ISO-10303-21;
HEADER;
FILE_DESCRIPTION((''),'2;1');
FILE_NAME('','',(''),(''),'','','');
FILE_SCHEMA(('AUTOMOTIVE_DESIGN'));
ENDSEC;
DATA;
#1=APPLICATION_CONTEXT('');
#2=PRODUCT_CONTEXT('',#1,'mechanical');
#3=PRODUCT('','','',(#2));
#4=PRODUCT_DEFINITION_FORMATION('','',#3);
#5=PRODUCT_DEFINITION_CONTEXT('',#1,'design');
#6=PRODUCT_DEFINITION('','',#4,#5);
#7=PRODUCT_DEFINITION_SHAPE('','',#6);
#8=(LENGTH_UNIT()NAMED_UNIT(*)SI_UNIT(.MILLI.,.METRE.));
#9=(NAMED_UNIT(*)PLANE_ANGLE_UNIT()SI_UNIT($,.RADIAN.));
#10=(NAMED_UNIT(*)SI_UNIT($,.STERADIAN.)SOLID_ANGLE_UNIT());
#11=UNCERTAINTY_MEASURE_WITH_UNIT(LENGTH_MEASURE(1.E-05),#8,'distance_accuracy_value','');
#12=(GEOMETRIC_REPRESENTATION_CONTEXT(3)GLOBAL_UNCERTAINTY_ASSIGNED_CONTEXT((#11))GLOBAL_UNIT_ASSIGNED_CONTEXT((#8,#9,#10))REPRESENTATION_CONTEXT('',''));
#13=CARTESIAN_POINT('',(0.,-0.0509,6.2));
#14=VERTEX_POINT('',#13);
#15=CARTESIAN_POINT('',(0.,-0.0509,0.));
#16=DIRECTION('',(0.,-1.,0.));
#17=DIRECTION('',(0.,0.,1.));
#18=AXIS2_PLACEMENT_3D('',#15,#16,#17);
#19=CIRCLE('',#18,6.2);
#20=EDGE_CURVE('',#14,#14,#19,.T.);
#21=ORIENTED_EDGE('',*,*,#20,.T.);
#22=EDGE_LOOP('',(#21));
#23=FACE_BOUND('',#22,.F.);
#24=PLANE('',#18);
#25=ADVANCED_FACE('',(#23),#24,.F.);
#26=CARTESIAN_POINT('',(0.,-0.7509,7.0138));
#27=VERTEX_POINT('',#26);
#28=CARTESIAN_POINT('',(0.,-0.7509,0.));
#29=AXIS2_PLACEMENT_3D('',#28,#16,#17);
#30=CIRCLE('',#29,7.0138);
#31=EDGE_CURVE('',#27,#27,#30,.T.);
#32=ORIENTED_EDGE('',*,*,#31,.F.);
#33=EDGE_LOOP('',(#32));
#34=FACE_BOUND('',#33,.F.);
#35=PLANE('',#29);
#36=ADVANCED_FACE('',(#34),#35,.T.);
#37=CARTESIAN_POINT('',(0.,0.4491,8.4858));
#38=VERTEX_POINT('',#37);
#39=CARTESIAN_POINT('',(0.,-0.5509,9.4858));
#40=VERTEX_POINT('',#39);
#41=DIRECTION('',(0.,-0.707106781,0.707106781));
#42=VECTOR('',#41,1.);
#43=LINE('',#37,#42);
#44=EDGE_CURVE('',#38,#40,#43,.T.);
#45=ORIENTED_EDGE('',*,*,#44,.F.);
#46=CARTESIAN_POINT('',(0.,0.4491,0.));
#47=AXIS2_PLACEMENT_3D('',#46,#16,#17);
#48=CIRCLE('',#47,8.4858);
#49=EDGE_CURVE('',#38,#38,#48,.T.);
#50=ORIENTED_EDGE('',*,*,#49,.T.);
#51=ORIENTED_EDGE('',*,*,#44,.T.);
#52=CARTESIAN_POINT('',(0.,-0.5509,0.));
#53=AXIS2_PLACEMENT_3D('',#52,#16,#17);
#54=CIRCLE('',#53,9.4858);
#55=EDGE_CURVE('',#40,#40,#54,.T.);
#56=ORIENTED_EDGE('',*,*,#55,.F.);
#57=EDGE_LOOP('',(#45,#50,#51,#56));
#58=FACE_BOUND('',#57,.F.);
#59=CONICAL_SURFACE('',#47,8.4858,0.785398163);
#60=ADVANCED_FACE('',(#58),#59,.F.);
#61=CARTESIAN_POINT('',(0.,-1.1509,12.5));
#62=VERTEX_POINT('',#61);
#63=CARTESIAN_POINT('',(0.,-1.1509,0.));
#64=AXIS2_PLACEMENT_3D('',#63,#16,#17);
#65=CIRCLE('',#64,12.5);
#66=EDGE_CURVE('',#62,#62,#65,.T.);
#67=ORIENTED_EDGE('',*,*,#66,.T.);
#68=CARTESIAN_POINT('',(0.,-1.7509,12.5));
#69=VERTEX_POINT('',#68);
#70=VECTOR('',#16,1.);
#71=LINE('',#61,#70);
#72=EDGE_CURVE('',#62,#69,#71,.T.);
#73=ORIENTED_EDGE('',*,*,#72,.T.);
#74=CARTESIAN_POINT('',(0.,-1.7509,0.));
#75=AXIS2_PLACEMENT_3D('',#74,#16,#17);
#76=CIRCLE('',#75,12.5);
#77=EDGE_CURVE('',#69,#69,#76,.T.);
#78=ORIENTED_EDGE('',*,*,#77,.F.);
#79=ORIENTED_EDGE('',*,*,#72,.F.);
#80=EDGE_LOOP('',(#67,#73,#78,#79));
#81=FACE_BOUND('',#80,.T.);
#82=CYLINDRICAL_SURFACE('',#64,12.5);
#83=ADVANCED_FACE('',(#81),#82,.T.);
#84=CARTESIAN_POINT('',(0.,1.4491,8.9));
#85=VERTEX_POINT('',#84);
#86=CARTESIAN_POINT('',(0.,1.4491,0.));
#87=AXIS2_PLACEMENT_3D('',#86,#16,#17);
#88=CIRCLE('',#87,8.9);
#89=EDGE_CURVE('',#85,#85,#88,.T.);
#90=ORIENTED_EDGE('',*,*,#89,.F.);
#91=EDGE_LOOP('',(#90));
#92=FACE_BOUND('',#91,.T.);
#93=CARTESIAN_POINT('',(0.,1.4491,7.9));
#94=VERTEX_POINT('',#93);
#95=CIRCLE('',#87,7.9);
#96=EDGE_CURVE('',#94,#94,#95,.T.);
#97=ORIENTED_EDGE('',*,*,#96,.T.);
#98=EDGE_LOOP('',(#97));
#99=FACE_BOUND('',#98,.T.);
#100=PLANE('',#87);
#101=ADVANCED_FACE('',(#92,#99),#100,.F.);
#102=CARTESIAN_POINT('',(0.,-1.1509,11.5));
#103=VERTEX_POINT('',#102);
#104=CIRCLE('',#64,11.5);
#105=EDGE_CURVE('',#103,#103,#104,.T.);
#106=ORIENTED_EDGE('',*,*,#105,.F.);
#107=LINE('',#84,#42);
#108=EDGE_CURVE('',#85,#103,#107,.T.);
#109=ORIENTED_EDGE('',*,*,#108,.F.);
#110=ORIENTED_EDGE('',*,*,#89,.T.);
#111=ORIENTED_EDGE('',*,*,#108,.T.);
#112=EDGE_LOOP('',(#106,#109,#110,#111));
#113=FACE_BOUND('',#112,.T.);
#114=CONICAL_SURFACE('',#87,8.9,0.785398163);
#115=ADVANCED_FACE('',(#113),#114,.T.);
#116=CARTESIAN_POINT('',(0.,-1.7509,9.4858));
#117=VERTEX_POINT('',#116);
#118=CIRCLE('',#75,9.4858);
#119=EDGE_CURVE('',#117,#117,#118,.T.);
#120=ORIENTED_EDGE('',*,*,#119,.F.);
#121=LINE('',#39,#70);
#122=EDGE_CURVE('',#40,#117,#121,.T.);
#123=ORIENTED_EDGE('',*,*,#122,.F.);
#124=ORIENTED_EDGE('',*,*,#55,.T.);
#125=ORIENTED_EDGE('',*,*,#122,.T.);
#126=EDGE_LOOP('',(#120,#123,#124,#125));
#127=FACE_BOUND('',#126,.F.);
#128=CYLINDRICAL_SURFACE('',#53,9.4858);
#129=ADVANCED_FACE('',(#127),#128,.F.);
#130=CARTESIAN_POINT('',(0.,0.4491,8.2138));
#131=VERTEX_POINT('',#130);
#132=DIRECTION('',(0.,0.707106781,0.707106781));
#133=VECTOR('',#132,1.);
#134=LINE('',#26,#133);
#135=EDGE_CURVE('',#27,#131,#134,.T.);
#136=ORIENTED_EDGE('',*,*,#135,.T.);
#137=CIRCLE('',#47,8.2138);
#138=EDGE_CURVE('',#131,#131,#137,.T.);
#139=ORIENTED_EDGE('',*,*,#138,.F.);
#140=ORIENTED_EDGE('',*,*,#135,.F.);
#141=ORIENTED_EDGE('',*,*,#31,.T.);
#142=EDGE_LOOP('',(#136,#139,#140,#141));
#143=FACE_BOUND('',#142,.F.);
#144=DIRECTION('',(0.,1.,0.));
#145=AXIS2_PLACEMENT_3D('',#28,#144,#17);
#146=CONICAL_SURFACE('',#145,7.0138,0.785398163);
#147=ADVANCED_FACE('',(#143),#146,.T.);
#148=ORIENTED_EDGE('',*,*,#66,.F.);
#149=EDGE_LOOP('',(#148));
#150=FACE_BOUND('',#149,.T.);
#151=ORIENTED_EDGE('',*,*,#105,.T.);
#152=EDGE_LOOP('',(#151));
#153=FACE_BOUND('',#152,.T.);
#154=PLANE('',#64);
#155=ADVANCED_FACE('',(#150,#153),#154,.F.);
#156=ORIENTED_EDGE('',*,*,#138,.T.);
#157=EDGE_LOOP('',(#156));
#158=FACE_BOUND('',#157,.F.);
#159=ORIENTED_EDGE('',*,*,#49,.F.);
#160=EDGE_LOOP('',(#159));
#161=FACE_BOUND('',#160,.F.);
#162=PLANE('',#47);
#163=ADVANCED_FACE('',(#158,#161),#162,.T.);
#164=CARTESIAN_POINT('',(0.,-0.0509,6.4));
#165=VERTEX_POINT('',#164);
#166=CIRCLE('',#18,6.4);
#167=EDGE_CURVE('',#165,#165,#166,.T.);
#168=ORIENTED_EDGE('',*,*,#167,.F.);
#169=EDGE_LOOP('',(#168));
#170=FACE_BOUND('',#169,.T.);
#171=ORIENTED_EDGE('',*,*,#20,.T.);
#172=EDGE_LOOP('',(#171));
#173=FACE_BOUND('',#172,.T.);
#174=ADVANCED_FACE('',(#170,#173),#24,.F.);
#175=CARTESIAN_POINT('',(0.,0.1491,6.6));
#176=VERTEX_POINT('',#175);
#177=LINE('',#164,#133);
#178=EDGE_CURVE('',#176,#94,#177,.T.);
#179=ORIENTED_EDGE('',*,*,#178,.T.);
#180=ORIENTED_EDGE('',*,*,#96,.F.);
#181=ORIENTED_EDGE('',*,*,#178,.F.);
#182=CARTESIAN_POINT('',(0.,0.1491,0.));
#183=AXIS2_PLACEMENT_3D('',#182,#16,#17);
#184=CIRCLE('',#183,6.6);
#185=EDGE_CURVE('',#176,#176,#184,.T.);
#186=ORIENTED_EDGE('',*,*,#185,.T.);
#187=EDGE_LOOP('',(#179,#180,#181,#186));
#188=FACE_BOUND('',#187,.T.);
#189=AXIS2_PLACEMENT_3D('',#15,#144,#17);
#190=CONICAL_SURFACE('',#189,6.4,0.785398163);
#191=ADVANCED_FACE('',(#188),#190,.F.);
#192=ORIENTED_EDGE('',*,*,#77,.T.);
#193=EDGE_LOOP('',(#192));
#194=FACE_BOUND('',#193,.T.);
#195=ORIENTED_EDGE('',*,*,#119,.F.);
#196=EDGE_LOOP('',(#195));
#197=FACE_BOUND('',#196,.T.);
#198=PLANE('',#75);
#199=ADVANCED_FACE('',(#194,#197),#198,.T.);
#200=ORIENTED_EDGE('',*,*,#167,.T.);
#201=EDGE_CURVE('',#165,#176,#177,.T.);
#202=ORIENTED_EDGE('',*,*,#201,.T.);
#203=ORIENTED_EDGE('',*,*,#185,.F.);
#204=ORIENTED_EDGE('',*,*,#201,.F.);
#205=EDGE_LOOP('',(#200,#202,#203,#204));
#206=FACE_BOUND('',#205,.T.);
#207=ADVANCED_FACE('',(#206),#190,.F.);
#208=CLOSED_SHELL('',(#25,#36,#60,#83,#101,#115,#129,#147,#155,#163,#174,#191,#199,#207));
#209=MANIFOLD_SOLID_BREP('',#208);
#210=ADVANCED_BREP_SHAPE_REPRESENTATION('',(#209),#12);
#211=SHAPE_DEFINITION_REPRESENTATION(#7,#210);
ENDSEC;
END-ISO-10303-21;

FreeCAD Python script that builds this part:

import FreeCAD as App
import Part
import Sketcher
from FreeCAD import Vector
Q = App.Units.Quantity

doc = App.newDocument("Part")
body = doc.addObject("PartDesign::Body", "Body")

# Sketch on YZ plane
sketch1 = body.newObject("Sketcher::SketchObject", "Sketch")
sketch1.AttachmentSupport = (doc.getObject("YZ_Plane"), [""])
sketch1.MapMode = "FlatFace"
sketch1.addGeometry(Part.LineSegment(Vector(-0.0509, 0, 0), Vector(-0.0509, 6.4, 0)), False)
sketch1.addGeometry(Part.LineSegment(Vector(-0.0509, 6.4, 0), Vector(1.4491, 7.9, 0)), False)
sketch1.addGeometry(Part.LineSegment(Vector(1.4491, 7.9, 0), Vector(1.4491, 8.9, 0)), False)
sketch1.addGeometry(Part.LineSegment(Vector(1.4491, 8.9, 0), Vector(-1.1509, 11.5, 0)), False)
sketch1.addGeometry(Part.LineSegment(Vector(-1.1509, 11.5, 0), Vector(-1.1509, 12.5, 0)), False)
sketch1.addGeometry(Part.LineSegment(Vector(-1.1509, 12.5, 0), Vector(-1.7509, 12.5, 0)), False)
sketch1.addGeometry(Part.LineSegment(Vector(-1.7509, 12.5, 0), Vector(-1.7509, 9.4858, 0)), False)
sketch1.addGeometry(Part.LineSegment(Vector(-1.7509, 9.4858, 0), Vector(-0.5509, 9.4858, 0)), False)
sketch1.addGeometry(Part.LineSegment(Vector(-0.5509, 9.4858, 0), Vector(0.4491, 8.4858, 0)), False)
sketch1.addGeometry(Part.LineSegment(Vector(0.4491, 8.4858, 0), Vector(0.4491, 8.2138, 0)), False)
sketch1.addGeometry(Part.LineSegment(Vector(0.4491, 8.2138, 0), Vector(-0.7509, 7.0138, 0)), False)
sketch1.addGeometry(Part.LineSegment(Vector(-0.7509, 7.0138, 0), Vector(-0.7509, 0, 0)), False)
sketch1.addGeometry(Part.LineSegment(Vector(-0.7509, 0, 0), Vector(-0.0509, 0, 0)), False)
sketch1.addConstraint(Sketcher.Constraint("Coincident", 0, 2, 1, 1))
sketch1.addConstraint(Sketcher.Constraint("Coincident", 1, 2, 2, 1))
sketch1.addConstraint(Sketcher.Constraint("Coincident", 2, 2, 3, 1))
sketch1.addConstraint(Sketcher.Constraint("Coincident", 3, 2, 4, 1))
sketch1.addConstraint(Sketcher.Constraint("Coincident", 4, 2, 5, 1))
sketch1.addConstraint(Sketcher.Constraint("Coincident", 5, 2, 6, 1))
sketch1.addConstraint(Sketcher.Constraint("Coincident", 6, 2, 7, 1))
sketch1.addConstraint(Sketcher.Constraint("Coincident", 7, 2, 8, 1))
sketch1.addConstraint(Sketcher.Constraint("Coincident", 8, 2, 9, 1))
sketch1.addConstraint(Sketcher.Constraint("Coincident", 9, 2, 10, 1))
sketch1.addConstraint(Sketcher.Constraint("Coincident", 10, 2, 11, 1))
sketch1.addConstraint(Sketcher.Constraint("Coincident", 11, 2, 12, 1))
sketch1.addConstraint(Sketcher.Constraint("Coincident", 12, 2, 0, 1))
sketch1.addConstraint(Sketcher.Constraint("Vertical", 0))
sketch1.addConstraint(Sketcher.Constraint("Vertical", 2))
sketch1.addConstraint(Sketcher.Constraint("Vertical", 4))
sketch1.addConstraint(Sketcher.Constraint("Horizontal", 5))
sketch1.addConstraint(Sketcher.Constraint("Vertical", 6))
sketch1.addConstraint(Sketcher.Constraint("Horizontal", 7))
sketch1.addConstraint(Sketcher.Constraint("Vertical", 9))
sketch1.addConstraint(Sketcher.Constraint("Vertical", 11))
sketch1.addConstraint(Sketcher.Constraint("Horizontal", 12))
sketch1.addConstraint(Sketcher.Constraint("PointOnObject", 11, 2, -1))
sketch1.addConstraint(Sketcher.Constraint("Perpendicular", 1, 3))
sketch1.addConstraint(Sketcher.Constraint("Parallel", 3, 8))
sketch1.addConstraint(Sketcher.Constraint("Perpendicular", 8, 10))
sketch1.addConstraint(Sketcher.Constraint("Equal", 2, 4))
sketch1.addConstraint(Sketcher.Constraint("DistanceY", 2, 1, 2, 2, Q("1 mm")))
sketch1.addConstraint(Sketcher.Constraint("Angle", 3, Q("135 deg")))
sketch1.addConstraint(Sketcher.Constraint("DistanceX", 5, 2, 5, 1, Q("0.6 mm")))
sketch1.addConstraint(Sketcher.Constraint("DistanceX", 7, 1, 7, 2, Q("1.2 mm")))
sketch1.addConstraint(Sketcher.Constraint("DistanceX", 12, 1, 12, 2, Q("0.7 mm")))
sketch1.addConstraint(Sketcher.Constraint("DistanceX", 8, 2, 2, 2, Q("1 mm")))
sketch1.addConstraint(Sketcher.Constraint("DistanceX", 7, 2, 8, 2, Q("1 mm")))
sketch1.addConstraint(Sketcher.Constraint("DistanceY", -1, 1, 4, 2, Q("12.5 mm")))
sketch1.addConstraint(Sketcher.Constraint("DistanceX", 10, 2, 9, 2, Q("1.2 mm")))
sketch1.addConstraint(Sketcher.Constraint("DistanceY", 9, 2, 9, 1, Q("0.272 mm")))
sketch1.addConstraint(Sketcher.Constraint("DistanceY", 6, 2, 6, 1, Q("3.0142 mm")))
sketch1.addConstraint(Sketcher.Constraint("DistanceX", 0, 2, -1, 1, Q("0.051 mm")))
revolution = body.newObject("PartDesign::Revolution", "Revolution")
revolution.Profile = sketch1
revolution.ReferenceAxis = (sketch1, ["H_Axis"])
revolution.Angle = 360

doc.recompute()
